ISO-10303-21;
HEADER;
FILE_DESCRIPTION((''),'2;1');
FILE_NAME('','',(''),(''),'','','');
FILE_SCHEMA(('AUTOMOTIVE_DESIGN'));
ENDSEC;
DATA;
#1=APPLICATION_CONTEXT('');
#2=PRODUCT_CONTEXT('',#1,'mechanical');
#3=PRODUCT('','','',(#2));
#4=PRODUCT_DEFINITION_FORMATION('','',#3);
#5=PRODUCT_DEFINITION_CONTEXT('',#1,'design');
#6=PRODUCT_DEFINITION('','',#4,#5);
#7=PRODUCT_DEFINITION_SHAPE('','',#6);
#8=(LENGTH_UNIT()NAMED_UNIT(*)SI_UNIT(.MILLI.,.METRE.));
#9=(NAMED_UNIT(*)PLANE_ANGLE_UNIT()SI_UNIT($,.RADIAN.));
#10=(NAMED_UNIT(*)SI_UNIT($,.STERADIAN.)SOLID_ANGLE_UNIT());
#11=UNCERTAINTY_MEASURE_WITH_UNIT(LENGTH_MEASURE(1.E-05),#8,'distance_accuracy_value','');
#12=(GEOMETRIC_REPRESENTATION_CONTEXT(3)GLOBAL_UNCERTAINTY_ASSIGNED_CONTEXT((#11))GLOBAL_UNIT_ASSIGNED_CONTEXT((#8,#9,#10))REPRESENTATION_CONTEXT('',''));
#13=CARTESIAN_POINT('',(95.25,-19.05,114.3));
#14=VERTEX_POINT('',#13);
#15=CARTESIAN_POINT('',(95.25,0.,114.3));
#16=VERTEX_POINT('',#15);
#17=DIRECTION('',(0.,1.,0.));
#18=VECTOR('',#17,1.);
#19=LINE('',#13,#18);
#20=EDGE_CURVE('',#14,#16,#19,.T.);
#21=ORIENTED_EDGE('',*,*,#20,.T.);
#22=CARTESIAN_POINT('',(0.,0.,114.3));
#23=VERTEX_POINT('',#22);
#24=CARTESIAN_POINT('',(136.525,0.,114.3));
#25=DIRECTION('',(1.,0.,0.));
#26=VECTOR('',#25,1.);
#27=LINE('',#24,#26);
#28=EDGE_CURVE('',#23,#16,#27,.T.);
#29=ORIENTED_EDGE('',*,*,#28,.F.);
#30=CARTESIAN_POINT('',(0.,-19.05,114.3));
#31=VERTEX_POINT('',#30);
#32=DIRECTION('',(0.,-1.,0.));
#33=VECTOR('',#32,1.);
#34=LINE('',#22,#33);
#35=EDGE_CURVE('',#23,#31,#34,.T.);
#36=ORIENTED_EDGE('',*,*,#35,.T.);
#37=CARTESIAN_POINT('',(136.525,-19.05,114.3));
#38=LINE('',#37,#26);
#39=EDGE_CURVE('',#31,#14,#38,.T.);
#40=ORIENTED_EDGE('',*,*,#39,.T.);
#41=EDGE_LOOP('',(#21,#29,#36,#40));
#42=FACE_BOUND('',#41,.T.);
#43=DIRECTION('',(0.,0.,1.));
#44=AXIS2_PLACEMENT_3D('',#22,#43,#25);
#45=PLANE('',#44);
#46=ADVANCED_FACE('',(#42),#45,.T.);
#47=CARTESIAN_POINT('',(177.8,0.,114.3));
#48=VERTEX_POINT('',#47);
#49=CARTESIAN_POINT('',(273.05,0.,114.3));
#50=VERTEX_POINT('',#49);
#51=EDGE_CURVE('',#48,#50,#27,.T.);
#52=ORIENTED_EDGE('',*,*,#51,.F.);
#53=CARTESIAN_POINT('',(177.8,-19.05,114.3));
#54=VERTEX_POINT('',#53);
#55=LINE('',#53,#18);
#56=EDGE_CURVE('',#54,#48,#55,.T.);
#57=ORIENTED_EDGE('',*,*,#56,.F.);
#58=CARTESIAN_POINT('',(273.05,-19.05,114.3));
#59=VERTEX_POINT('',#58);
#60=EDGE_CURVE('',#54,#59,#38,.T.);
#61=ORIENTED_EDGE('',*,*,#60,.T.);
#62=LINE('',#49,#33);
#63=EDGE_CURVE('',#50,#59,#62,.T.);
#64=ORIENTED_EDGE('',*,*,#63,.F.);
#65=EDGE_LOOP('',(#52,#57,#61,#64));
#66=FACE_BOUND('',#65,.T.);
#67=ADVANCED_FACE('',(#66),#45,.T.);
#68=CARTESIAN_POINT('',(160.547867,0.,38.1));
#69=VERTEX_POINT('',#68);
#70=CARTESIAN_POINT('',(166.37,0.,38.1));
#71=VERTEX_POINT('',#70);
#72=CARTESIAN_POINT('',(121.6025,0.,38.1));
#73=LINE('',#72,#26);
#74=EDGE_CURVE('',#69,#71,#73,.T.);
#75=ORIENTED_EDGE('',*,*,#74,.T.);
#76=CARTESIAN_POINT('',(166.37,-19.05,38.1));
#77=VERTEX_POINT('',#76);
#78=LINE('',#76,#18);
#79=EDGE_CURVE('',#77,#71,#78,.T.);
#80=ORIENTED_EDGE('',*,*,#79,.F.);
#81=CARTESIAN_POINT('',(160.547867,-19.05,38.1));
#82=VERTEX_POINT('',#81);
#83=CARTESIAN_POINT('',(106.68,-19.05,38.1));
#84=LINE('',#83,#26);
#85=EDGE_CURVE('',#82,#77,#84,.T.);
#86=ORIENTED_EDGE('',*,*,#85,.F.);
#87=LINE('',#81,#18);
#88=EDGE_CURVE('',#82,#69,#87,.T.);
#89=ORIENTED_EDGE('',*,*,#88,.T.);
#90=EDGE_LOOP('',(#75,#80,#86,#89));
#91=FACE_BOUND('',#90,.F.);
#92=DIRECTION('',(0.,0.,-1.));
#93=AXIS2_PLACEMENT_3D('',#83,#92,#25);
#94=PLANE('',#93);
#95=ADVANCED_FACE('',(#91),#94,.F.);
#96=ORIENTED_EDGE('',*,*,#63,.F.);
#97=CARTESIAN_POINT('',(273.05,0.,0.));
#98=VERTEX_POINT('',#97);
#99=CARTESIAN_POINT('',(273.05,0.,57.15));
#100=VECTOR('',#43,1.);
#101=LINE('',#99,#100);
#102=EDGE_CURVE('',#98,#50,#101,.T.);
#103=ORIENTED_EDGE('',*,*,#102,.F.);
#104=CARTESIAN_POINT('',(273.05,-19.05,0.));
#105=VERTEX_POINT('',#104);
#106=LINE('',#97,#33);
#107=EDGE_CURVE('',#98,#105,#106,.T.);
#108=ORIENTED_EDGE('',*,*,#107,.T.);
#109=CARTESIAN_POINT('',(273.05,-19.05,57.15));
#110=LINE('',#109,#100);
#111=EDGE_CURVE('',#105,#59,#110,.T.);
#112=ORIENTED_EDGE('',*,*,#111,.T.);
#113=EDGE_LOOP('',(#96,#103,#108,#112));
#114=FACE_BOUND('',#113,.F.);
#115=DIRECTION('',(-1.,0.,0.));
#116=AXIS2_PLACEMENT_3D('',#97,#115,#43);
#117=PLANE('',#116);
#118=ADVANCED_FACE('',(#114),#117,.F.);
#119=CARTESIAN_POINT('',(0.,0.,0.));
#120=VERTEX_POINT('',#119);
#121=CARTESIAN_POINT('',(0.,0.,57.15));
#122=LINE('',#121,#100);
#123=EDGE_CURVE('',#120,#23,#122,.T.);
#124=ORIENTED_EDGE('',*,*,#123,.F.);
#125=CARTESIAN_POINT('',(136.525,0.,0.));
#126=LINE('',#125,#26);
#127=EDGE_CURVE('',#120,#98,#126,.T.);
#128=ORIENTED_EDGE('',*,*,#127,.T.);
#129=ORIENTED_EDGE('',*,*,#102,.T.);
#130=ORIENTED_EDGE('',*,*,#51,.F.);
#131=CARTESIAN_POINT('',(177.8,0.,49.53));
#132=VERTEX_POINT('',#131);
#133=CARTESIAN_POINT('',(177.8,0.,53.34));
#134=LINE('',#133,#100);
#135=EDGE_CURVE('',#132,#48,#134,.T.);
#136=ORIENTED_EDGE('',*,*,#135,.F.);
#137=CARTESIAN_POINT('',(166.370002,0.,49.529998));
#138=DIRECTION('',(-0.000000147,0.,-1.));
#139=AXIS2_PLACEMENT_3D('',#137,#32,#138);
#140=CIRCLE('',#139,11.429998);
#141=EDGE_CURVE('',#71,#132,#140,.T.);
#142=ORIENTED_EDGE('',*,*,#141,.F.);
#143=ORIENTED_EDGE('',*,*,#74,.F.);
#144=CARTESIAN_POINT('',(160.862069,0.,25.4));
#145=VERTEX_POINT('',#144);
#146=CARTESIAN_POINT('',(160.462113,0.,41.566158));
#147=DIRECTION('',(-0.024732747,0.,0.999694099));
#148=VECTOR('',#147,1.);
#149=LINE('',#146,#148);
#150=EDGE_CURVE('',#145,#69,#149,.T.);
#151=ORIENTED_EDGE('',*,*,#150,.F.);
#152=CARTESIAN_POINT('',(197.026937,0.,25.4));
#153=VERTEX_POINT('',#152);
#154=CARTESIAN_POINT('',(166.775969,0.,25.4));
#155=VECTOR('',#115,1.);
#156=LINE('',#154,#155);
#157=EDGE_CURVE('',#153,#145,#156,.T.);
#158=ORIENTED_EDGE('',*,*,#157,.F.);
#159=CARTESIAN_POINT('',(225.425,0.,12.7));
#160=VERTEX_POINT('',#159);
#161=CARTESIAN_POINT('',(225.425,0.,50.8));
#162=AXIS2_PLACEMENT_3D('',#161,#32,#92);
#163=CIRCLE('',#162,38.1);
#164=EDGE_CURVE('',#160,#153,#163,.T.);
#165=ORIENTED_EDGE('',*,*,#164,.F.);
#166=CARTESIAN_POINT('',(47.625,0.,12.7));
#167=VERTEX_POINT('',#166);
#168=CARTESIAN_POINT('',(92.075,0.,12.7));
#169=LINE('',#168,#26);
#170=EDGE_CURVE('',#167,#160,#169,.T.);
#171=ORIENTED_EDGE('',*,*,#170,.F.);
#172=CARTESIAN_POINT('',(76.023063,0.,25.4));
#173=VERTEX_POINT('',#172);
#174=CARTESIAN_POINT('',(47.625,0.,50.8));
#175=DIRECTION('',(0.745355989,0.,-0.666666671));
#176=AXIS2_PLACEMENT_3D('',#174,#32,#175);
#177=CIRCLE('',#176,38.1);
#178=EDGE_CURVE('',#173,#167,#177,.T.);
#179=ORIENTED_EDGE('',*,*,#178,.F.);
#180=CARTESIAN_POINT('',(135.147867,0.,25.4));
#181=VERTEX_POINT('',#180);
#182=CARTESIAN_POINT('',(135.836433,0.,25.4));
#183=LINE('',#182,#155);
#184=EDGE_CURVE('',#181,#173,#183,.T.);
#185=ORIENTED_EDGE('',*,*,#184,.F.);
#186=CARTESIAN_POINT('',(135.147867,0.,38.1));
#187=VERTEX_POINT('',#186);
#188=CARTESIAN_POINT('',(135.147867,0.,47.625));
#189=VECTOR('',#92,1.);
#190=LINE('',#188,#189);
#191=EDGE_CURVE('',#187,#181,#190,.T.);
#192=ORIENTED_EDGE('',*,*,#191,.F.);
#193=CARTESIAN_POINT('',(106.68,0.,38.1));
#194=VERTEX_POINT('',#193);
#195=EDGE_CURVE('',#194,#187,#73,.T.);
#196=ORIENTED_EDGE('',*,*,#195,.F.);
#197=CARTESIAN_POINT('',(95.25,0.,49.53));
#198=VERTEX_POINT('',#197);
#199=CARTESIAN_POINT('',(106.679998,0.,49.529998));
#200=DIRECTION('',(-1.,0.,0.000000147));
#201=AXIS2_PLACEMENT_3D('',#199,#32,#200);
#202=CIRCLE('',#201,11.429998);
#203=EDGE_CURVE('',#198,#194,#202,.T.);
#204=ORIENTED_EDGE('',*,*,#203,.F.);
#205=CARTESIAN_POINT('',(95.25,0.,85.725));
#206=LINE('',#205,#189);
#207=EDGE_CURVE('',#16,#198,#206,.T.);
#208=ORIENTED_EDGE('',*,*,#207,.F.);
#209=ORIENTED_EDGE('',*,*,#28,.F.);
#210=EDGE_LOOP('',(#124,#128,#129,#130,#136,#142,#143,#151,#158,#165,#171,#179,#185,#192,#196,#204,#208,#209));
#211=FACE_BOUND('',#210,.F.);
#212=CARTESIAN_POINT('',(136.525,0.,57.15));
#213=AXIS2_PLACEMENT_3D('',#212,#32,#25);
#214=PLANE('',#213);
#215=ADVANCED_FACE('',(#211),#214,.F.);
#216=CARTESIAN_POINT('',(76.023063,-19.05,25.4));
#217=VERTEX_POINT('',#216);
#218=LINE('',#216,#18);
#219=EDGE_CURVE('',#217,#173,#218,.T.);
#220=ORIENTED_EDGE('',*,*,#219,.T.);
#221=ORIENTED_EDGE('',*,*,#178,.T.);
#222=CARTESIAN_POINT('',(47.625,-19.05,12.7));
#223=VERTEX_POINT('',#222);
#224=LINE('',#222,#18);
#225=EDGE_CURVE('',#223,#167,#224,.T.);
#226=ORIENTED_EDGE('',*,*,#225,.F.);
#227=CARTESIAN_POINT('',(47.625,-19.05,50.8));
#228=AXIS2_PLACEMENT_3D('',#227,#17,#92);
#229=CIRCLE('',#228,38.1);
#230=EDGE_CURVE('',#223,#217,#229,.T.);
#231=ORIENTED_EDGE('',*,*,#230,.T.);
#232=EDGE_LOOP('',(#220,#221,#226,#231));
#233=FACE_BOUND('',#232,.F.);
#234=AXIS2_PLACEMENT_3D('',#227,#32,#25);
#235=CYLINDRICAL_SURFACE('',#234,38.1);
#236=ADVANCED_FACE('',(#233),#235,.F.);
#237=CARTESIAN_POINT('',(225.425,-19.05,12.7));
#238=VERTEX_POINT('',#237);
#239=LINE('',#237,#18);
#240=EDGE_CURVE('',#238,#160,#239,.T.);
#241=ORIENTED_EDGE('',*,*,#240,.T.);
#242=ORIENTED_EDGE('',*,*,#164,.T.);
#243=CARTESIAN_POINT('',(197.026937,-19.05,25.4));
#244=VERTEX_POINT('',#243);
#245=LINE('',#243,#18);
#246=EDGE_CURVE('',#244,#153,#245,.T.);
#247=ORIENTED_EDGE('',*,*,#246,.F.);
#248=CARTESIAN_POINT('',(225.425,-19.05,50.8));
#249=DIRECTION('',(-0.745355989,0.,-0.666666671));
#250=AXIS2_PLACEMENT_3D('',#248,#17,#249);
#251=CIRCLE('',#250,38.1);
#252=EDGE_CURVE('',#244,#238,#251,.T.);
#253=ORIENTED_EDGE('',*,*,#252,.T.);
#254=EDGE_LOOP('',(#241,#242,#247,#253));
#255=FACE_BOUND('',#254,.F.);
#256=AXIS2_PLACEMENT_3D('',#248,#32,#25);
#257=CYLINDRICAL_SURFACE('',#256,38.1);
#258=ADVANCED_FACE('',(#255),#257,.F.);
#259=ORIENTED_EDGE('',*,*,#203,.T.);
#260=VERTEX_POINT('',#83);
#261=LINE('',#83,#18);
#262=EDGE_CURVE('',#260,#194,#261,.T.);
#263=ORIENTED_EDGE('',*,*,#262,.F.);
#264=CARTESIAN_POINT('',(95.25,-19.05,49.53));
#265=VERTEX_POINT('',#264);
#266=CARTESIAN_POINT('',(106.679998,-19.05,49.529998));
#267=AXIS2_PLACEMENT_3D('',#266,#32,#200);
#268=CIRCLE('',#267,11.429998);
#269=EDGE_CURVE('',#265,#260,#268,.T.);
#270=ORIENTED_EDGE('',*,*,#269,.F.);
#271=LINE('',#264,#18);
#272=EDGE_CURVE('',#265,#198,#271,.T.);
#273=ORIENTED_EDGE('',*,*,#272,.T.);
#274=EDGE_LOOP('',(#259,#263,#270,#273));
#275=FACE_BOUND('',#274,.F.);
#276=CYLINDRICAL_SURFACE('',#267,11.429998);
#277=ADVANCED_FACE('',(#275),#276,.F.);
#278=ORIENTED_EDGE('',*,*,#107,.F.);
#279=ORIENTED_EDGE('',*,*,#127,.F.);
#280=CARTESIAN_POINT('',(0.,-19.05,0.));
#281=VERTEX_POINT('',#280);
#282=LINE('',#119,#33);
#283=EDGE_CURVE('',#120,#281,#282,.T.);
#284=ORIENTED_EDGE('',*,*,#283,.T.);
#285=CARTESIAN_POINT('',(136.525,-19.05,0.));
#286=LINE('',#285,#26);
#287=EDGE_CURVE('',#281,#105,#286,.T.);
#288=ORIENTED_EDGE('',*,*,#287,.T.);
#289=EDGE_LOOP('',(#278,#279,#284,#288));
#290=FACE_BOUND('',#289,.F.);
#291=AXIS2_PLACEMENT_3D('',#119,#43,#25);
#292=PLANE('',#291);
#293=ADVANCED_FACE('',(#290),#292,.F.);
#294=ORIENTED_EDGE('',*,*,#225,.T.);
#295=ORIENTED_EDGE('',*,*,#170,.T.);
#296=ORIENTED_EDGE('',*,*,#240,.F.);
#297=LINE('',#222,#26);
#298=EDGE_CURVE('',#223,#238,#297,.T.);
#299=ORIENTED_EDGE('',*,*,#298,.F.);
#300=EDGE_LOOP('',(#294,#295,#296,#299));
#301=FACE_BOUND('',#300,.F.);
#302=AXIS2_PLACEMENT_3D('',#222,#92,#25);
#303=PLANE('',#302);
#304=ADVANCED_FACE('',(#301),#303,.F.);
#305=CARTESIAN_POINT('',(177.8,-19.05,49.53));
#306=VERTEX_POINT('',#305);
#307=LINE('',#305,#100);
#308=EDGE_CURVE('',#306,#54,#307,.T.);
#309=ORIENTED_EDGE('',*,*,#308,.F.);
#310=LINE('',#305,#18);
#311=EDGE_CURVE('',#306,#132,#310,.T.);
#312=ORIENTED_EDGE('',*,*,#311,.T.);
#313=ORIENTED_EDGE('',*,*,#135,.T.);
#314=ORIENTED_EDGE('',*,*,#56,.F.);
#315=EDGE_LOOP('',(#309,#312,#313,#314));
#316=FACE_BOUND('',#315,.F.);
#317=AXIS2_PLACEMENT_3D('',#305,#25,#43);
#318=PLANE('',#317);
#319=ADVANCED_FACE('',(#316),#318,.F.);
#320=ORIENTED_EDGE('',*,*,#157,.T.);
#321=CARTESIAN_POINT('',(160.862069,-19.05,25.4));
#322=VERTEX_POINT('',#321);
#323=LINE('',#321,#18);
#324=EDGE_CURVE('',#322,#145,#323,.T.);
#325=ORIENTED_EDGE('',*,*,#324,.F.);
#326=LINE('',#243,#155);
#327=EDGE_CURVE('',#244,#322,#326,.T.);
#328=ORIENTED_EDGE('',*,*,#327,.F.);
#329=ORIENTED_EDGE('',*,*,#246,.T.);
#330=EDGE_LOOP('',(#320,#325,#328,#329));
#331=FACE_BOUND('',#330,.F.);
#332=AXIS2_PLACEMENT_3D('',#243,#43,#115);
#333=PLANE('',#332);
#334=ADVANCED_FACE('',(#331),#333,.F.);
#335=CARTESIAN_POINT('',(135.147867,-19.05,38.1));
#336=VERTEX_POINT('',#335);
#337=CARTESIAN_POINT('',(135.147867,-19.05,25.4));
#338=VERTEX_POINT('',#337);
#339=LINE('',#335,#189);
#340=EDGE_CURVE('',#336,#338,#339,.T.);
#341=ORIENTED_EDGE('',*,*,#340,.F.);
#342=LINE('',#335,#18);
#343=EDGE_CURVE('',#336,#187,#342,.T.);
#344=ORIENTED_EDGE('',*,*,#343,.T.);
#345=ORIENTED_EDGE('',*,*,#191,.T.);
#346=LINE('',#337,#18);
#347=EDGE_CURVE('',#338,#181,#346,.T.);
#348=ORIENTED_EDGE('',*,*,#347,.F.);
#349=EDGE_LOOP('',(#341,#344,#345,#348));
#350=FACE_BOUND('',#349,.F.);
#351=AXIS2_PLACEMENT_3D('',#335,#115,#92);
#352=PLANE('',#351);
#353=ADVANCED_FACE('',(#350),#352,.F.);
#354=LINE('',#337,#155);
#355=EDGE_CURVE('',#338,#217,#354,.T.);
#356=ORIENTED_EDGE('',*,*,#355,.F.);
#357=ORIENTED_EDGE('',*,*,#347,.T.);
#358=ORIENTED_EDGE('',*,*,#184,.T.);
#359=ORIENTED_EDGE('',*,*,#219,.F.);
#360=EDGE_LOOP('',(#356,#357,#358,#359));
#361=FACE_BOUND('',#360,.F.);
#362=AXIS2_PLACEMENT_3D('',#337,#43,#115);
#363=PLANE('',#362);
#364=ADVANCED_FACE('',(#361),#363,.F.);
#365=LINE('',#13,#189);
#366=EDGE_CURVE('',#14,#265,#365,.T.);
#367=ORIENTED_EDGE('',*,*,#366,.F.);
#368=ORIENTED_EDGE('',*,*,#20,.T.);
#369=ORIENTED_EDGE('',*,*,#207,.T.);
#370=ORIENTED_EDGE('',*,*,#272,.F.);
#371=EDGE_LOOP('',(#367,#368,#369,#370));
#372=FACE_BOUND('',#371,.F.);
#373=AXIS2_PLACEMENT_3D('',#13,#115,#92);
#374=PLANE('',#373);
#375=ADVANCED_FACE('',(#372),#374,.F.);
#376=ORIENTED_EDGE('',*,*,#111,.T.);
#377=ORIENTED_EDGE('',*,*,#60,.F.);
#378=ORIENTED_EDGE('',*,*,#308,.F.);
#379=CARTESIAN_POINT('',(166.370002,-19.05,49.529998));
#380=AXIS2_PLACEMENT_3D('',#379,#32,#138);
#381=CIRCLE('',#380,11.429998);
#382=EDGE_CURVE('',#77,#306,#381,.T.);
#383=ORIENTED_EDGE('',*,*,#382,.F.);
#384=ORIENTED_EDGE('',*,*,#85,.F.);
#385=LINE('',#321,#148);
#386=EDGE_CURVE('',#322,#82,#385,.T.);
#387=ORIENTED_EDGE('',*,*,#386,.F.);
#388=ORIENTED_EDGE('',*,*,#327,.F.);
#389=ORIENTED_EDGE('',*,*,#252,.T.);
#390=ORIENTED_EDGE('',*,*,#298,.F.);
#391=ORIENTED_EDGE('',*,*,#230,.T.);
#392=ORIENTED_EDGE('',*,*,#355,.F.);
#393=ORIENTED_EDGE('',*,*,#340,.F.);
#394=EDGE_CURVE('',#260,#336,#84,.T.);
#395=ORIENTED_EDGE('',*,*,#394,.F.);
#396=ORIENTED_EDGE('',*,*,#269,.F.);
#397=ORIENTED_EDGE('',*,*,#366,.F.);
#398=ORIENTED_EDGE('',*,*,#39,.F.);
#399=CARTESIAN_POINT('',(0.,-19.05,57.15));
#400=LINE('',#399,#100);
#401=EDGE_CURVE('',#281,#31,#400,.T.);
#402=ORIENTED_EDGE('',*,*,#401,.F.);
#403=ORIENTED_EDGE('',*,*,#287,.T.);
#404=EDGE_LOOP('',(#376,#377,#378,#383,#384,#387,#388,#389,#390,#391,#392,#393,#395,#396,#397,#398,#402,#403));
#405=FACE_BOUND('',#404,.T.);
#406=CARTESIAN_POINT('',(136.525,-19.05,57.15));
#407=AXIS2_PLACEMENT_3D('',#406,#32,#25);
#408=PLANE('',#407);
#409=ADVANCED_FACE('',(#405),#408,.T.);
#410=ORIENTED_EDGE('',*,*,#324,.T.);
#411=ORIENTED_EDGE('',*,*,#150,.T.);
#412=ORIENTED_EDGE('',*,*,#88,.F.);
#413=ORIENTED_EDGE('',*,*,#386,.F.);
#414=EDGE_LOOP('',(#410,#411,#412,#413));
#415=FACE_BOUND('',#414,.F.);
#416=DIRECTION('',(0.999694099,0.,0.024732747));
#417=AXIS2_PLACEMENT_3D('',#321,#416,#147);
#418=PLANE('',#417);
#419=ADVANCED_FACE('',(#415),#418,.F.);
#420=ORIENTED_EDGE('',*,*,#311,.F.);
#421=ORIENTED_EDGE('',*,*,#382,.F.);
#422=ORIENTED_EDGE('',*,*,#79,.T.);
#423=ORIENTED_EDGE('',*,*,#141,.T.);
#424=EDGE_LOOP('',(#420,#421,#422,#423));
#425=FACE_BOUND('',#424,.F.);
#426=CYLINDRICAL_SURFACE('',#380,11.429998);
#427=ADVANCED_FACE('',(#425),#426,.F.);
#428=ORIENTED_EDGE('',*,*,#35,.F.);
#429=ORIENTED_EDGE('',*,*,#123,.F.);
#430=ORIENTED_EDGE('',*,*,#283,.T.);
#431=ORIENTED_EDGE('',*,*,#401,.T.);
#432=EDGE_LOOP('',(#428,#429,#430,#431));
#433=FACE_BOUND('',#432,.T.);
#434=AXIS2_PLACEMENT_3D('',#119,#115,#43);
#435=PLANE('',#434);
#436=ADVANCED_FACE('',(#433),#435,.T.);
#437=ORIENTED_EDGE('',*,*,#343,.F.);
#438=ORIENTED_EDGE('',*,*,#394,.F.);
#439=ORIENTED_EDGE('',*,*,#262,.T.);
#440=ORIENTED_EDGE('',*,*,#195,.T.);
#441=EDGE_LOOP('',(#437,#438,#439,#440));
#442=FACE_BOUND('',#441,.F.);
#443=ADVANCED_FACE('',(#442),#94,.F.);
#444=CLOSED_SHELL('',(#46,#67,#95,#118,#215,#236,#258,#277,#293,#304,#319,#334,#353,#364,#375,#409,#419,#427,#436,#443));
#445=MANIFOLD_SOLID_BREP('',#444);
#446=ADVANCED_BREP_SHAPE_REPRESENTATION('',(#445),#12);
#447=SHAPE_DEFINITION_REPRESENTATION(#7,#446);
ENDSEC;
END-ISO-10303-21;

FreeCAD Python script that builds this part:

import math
import FreeCAD as App
import Part
import Sketcher
from FreeCAD import Vector
Q = App.Units.Quantity


def add_polygon(sketch, points):
    """Adds a closed chain of lines whose ends are joined by coincident constraints."""
    first, n = sketch.GeometryCount, len(points)
    for a, b in zip(points, points[1:] + points[:1]):
        sketch.addGeometry(Part.LineSegment(App.Vector(*a, 0), App.Vector(*b, 0)), False)
    for i in range(n):
        sketch.addConstraint(Sketcher.Constraint("Coincident", first + i, 2, first + (i + 1) % n, 1))

doc = App.newDocument("Part")
body = doc.addObject("PartDesign::Body", "Body")

# Sketch on XZ plane
sketch1 = body.newObject("Sketcher::SketchObject", "Sketch")
sketch1.AttachmentSupport = (doc.getObject("XZ_Plane"), [""])
sketch1.MapMode = "FlatFace"
add_polygon(sketch1, [(0, 114), (0, 0), (273, 0), (273, 114)])  # lines 0-3
sketch1.addConstraint([
    Sketcher.Constraint("Vertical", 0),
    Sketcher.Constraint("Horizontal", 1),
    Sketcher.Constraint("Vertical", 2),
    Sketcher.Constraint("Horizontal", 3),
    Sketcher.Constraint("Coincident", 0, 2, -1, 1),
    Sketcher.Constraint("DistanceY", 0, 2, 0, 1, Q("4.5 in")),
    Sketcher.Constraint("DistanceX", 1, 1, 1, 2, Q("10.75 in")),
])
pad1 = body.newObject("PartDesign::Pad", "Pad")
pad1.Profile = sketch1
pad1.Length = Q("0.75 in")

# Sketch on XZ plane
sketch2 = body.newObject("Sketcher::SketchObject", "Sketch001")
sketch2.AttachmentSupport = (doc.getObject("XZ_Plane"), [""])
sketch2.MapMode = "FlatFace"
sketch2.AttachmentOffset = App.Placement(Vector(0, 0, 0.75 * 25.4), App.Rotation())
sketch2.addGeometry([
    Part.Circle(Vector(48, 51, 0), Vector(0, 0, 1), 38),
    Part.Circle(Vector(225, 51, 0), Vector(0, 0, 1), 38),
], False)
sketch2.addConstraint([
    Sketcher.Constraint("Equal", 0, 1),
    Sketcher.Constraint("Horizontal", 0, 3, 1, 3),
    Sketcher.Constraint("Diameter", 0, Q("3 in")),
    Sketcher.Constraint("DistanceY", -1, 1, 0, 3, Q("2 in")),
    Sketcher.Constraint("DistanceX", 0, 3, 1, 3, Q("7 in")),
    Sketcher.Constraint("DistanceX", -1, 1, 0, 3, Q("1.875 in")),
])
pocket1 = body.newObject("PartDesign::Pocket", "Pocket")
pocket1.Profile = sketch2
pocket1.Length = Q("1 in")

# Sketch on XZ plane
sketch3 = body.newObject("Sketcher::SketchObject", "Sketch002")
sketch3.AttachmentSupport = (doc.getObject("XZ_Plane"), [""])
sketch3.MapMode = "FlatFace"
sketch3.AttachmentOffset = App.Placement(Vector(0, 0, 0.75 * 25.4), App.Rotation())
sketch3.addGeometry([
    Part.LineSegment(Vector(178, 114, 0), Vector(95, 114, 0)),  # 0
    Part.LineSegment(Vector(95, 114, 0), Vector(95, 50, 0)),  # 1
    Part.ArcOfCircle(Part.Circle(Vector(107, 50, 0), Vector(0, 0, 1), 11), math.radians(180), math.radians(270)),  # 2
    Part.LineSegment(Vector(107, 38, 0), Vector(166, 38, 0)),  # 3
    Part.ArcOfCircle(Part.Circle(Vector(166, 50, 0), Vector(0, 0, 1), 11), math.radians(-90), math.radians(0)),  # 4
    Part.LineSegment(Vector(178, 50, 0), Vector(178, 114, 0)),  # 5
], False)
sketch3.addConstraint([
    Sketcher.Constraint("Coincident", 0, 2, 1, 1),
    Sketcher.Constraint("Tangent", 1, 2, 2, 1),
    Sketcher.Constraint("Tangent", 2, 2, 3, 1),
    Sketcher.Constraint("Tangent", 3, 2, 4, 1),
    Sketcher.Constraint("Tangent", 4, 2, 5, 1),
    Sketcher.Constraint("Coincident", 5, 2, 0, 1),
    Sketcher.Constraint("Horizontal", 0),
    Sketcher.Constraint("Vertical", 1),
    Sketcher.Constraint("Horizontal", 3),
    Sketcher.Constraint("Vertical", 5),
    Sketcher.Constraint("Equal", 2, 4),
    Sketcher.Constraint("Radius", 2, Q("0.4499999 in")),
    Sketcher.Constraint("DistanceX", -1, 1, 4, 2, Q("7 in")),
    Sketcher.Constraint("DistanceY", 2, 2, 0, 2, Q("3 in")),
    Sketcher.Constraint("DistanceX", 0, 2, 0, 1, Q("3.25 in")),
    Sketcher.Constraint("DistanceY", -1, 1, 0, 2, Q("4.5 in")),
])
pocket2 = body.newObject("PartDesign::Pocket", "Pocket001")
pocket2.Profile = sketch3
pocket2.Length = Q("1 in")

# Sketch on XZ plane
sketch4 = body.newObject("Sketcher::SketchObject", "Sketch003")
sketch4.AttachmentSupport = (doc.getObject("XZ_Plane"), [""])
sketch4.MapMode = "FlatFace"
sketch4.AttachmentOffset = App.Placement(Vector(0, 0, 0.75 * 25.4), App.Rotation())
add_polygon(sketch4, [(161, 25), (161, 38), (135, 38), (135, 25), (76, 25), (48, 13), (225, 13), (197, 25)])  # lines 0-7
sketch4.addConstraint([
    Sketcher.Constraint("Horizontal", 1),
    Sketcher.Constraint("Vertical", 2),
    Sketcher.Constraint("Horizontal", 3),
    Sketcher.Constraint("Horizontal", 5),
    Sketcher.Constraint("Horizontal", 7),
    Sketcher.Constraint("Horizontal", 3, 2, 6, 2),
    Sketcher.Constraint("Equal", 4, 6),
    Sketcher.Constraint("DistanceX", 1, 2, 1, 1, Q("1 in")),
    Sketcher.Constraint("DistanceX", 5, 1, 5, 2, Q("7 in")),
    Sketcher.Constraint("DistanceY", 2, 2, 2, 1, Q("0.5 in")),
    Sketcher.Constraint("DistanceY", -1, 1, 2, 2, Q("1 in")),
    Sketcher.Constraint("DistanceY", 4, 2, 1, 2, Q("1 in")),
    Sketcher.Constraint("DistanceX", -1, 1, 4, 2, Q("1.875 in")),
    Sketcher.Constraint("DistanceX", 7, 2, 7, 1, 36.164868),
    Sketcher.Constraint("DistanceX", 0, 2, 7, 2, 0.314202),
    Sketcher.Constraint("Distance", 4, 31.108519),
])
pocket3 = body.newObject("PartDesign::Pocket", "Pocket002")
pocket3.Profile = sketch4
pocket3.Length = Q("1 in")

doc.recompute()
